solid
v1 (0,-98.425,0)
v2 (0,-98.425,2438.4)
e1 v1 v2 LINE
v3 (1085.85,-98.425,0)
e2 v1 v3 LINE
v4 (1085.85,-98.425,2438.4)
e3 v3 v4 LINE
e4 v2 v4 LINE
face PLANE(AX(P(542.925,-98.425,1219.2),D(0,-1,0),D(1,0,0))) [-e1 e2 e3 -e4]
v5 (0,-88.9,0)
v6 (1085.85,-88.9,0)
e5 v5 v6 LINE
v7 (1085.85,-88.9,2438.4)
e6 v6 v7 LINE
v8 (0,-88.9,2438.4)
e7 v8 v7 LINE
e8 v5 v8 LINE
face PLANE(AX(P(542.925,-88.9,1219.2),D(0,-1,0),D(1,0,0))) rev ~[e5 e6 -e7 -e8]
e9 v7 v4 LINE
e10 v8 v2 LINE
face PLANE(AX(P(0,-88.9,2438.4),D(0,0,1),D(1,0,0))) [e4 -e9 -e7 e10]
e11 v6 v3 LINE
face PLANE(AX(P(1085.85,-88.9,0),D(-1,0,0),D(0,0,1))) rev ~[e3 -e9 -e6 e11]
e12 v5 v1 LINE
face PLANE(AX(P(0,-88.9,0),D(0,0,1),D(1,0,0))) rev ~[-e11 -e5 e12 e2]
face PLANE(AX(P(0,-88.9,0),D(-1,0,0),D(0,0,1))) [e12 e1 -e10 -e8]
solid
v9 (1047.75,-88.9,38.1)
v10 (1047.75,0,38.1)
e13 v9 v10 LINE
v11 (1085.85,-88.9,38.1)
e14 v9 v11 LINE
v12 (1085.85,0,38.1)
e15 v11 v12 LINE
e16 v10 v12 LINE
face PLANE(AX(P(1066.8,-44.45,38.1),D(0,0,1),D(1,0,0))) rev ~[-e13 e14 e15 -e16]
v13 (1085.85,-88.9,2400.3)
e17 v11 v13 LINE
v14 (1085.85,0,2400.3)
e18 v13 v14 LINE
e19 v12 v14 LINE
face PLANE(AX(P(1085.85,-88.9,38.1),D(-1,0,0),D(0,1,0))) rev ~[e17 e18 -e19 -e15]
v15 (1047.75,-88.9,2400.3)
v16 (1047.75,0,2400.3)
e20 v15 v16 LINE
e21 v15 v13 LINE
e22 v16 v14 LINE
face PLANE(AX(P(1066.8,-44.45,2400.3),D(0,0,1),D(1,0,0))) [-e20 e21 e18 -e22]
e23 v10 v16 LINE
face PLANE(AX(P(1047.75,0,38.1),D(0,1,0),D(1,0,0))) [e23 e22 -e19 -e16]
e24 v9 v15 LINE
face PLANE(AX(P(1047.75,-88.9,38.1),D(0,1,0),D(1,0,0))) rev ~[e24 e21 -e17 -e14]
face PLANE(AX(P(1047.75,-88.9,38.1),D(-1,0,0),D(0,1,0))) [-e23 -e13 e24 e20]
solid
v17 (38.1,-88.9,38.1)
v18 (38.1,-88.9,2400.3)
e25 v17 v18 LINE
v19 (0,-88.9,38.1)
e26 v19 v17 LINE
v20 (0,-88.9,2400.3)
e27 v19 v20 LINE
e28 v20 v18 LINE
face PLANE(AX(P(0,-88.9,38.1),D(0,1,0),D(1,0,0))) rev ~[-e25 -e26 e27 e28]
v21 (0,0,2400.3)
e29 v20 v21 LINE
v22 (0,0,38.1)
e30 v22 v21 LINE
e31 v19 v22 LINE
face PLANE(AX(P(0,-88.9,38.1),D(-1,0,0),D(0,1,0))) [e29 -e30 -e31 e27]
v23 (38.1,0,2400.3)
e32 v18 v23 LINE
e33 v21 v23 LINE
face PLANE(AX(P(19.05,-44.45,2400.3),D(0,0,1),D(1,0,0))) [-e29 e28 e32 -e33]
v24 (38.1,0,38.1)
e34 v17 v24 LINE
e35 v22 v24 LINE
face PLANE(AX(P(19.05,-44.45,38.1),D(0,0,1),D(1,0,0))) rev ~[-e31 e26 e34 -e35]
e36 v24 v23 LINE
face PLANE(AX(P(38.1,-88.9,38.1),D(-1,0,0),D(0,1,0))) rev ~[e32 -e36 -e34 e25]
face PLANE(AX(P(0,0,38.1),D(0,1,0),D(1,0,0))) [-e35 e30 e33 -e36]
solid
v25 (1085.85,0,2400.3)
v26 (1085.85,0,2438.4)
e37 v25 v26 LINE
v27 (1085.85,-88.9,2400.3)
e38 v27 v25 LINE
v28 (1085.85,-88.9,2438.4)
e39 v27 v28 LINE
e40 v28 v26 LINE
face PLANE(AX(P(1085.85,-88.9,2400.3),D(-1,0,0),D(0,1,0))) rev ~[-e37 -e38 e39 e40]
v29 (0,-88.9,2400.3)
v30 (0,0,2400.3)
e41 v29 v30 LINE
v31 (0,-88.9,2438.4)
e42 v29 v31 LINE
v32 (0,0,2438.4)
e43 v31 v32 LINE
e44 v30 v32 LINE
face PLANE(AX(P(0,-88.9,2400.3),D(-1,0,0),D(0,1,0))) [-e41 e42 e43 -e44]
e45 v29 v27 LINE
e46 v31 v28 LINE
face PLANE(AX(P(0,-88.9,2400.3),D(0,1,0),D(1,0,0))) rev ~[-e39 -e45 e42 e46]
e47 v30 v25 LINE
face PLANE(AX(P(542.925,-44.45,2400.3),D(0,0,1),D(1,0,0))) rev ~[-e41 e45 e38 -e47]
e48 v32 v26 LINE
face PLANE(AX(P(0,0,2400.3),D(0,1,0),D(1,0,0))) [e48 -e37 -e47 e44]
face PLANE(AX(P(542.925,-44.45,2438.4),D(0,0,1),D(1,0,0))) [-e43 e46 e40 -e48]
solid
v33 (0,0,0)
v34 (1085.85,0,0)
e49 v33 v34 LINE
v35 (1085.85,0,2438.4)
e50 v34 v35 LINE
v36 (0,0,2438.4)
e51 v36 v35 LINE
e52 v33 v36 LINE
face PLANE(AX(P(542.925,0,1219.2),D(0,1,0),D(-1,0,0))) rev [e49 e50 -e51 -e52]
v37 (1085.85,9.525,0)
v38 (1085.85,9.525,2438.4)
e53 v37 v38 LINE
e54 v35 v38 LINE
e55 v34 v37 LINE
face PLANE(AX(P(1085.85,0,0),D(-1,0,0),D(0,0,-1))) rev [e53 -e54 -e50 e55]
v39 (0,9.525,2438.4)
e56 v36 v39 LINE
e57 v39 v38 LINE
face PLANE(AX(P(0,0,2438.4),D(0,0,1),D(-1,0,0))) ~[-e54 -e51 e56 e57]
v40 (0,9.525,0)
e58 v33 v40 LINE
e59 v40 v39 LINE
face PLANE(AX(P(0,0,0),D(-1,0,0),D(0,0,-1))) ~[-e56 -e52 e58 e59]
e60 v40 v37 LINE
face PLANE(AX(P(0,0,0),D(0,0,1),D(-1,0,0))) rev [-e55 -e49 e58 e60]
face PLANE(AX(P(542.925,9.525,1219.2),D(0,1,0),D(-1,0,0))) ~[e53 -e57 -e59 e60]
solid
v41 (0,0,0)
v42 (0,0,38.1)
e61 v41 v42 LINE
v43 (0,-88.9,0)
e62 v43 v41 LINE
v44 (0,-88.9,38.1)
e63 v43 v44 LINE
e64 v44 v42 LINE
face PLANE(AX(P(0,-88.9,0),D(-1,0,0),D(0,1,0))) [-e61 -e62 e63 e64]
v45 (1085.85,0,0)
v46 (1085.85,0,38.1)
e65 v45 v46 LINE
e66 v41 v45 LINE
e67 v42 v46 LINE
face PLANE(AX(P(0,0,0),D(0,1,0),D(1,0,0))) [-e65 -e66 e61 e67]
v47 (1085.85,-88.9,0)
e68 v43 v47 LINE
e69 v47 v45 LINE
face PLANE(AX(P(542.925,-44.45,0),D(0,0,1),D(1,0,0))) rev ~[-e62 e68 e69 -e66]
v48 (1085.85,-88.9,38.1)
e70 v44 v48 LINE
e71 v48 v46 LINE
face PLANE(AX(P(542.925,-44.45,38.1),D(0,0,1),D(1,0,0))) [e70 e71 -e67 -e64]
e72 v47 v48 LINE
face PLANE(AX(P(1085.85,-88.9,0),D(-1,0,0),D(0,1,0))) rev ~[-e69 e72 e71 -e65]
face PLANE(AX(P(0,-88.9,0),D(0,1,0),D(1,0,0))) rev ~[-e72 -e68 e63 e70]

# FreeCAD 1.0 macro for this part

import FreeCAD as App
import Part
import Sketcher

V = App.Vector
Q = App.Units.Quantity

doc = App.newDocument("Part")
body = doc.addObject("PartDesign::Body", "Body")

# Sketch on XY plane
sketch1 = body.newObject("Sketcher::SketchObject", "Sketch")
sketch1.AttachmentSupport = (doc.getObject("XY_Plane"), [""])
sketch1.MapMode = "FlatFace"
sketch1.addGeometry([
    Part.LineSegment(V(0, 0, 0), V(0, -89, 0)),
    Part.LineSegment(V(0, -89, 0), V(1086, -89, 0)),
    Part.LineSegment(V(1086, -89, 0), V(1086, 0, 0)),
    Part.LineSegment(V(1086, 0, 0), V(0, 0, 0)),
], False)
sketch1.addConstraint([
    Sketcher.Constraint("Coincident", 0, 2, 1, 1),
    Sketcher.Constraint("Coincident", 1, 2, 2, 1),
    Sketcher.Constraint("Coincident", 2, 2, 3, 1),
    Sketcher.Constraint("Coincident", 3, 2, 0, 1),
    Sketcher.Constraint("Vertical", 0),
    Sketcher.Constraint("Horizontal", 1),
    Sketcher.Constraint("Vertical", 2),
    Sketcher.Constraint("Horizontal", 3),
    Sketcher.Constraint("Coincident", 3, 2, -1, 1),
    Sketcher.Constraint("DistanceY", 0, 2, 0, 1, Q("3.5 in")),
    Sketcher.Constraint("DistanceX", 1, 1, 1, 2, Q("42.75 in")),
])
pad1 = body.newObject("PartDesign::Pad", "Pad")
pad1.Profile = sketch1
pad1.Length = Q("1.5 in")
body2 = doc.addObject("PartDesign::Body", "Body001")

# Sketch on XY plane
sketch2 = body2.newObject("Sketcher::SketchObject", "Sketch001")
sketch2.AttachmentSupport = (doc.getObject("XY_Plane001"), [""])
sketch2.MapMode = "FlatFace"
sketch2.AttachmentOffset = App.Placement(V(0, 0, 1.5 * 25.4), App.Rotation())
sketch2.addGeometry([
    Part.LineSegment(V(0, 0, 0), V(0, -89, 0)),
    Part.LineSegment(V(0, -89, 0), V(38, -89, 0)),
    Part.LineSegment(V(38, -89, 0), V(38, 0, 0)),
    Part.LineSegment(V(38, 0, 0), V(0, 0, 0)),
], False)
sketch2.addConstraint([
    Sketcher.Constraint("Coincident", 0, 2, 1, 1),
    Sketcher.Constraint("Coincident", 1, 2, 2, 1),
    Sketcher.Constraint("Coincident", 2, 2, 3, 1),
    Sketcher.Constraint("Coincident", 3, 2, 0, 1),
    Sketcher.Constraint("Vertical", 0),
    Sketcher.Constraint("Horizontal", 1),
    Sketcher.Constraint("Vertical", 2),
    Sketcher.Constraint("Horizontal", 3),
    Sketcher.Constraint("Coincident", 3, 2, -1, 1),
    Sketcher.Constraint("DistanceX", 1, 1, 1, 2, Q("1.5 in")),
    Sketcher.Constraint("DistanceY", 0, 2, 0, 1, Q("3.5 in")),
])
pad2 = body2.newObject("PartDesign::Pad", "Pad001")
pad2.Profile = sketch2
pad2.Length = Q("93 in")
body3 = doc.addObject("PartDesign::Body", "Body002")

# Sketch on XY plane
sketch3 = body3.newObject("Sketcher::SketchObject", "Sketch002")
sketch3.AttachmentSupport = (doc.getObject("XY_Plane002"), [""])
sketch3.MapMode = "FlatFace"
sketch3.AttachmentOffset = App.Placement(V(0, 0, 1.5 * 25.4), App.Rotation())
sketch3.addGeometry([
    Part.LineSegment(V(1048, 0, 0), V(1048, -89, 0)),
    Part.LineSegment(V(1048, -89, 0), V(1086, -89, 0)),
    Part.LineSegment(V(1086, -89, 0), V(1086, 0, 0)),
    Part.LineSegment(V(1086, 0, 0), V(1048, 0, 0)),
], False)
sketch3.addConstraint([
    Sketcher.Constraint("Coincident", 0, 2, 1, 1),
    Sketcher.Constraint("Coincident", 1, 2, 2, 1),
    Sketcher.Constraint("Coincident", 2, 2, 3, 1),
    Sketcher.Constraint("Coincident", 3, 2, 0, 1),
    Sketcher.Constraint("Vertical", 0),
    Sketcher.Constraint("Horizontal", 1),
    Sketcher.Constraint("Vertical", 2),
    Sketcher.Constraint("Horizontal", 3),
    Sketcher.Constraint("PointOnObject", 2, 2, -1),
    Sketcher.Constraint("DistanceX", 1, 1, 1, 2, Q("1.5 in")),
    Sketcher.Constraint("DistanceY", 0, 2, 0, 1, Q("3.5 in")),
    Sketcher.Constraint("DistanceX", -1, 1, 0, 2, Q("41.25 in")),
])
pad3 = body3.newObject("PartDesign::Pad", "Pad002")
pad3.Profile = sketch3
pad3.Length = Q("93 in")
body4 = doc.addObject("PartDesign::Body", "Body003")

# Sketch on XY plane
sketch4 = body4.newObject("Sketcher::SketchObject", "Sketch003")
sketch4.AttachmentSupport = (doc.getObject("XY_Plane003"), [""])
sketch4.MapMode = "FlatFace"
sketch4.AttachmentOffset = App.Placement(V(0, 0, 94.5 * 25.4), App.Rotation())
sketch4.addGeometry([
    Part.LineSegment(V(0, 0, 0), V(0, -89, 0)),
    Part.LineSegment(V(0, -89, 0), V(1086, -89, 0)),
    Part.LineSegment(V(1086, -89, 0), V(1086, 0, 0)),
    Part.LineSegment(V(1086, 0, 0), V(0, 0, 0)),
], False)
sketch4.addConstraint([
    Sketcher.Constraint("Coincident", 0, 2, 1, 1),
    Sketcher.Constraint("Coincident", 1, 2, 2, 1),
    Sketcher.Constraint("Coincident", 2, 2, 3, 1),
    Sketcher.Constraint("Coincident", 3, 2, 0, 1),
    Sketcher.Constraint("Vertical", 0),
    Sketcher.Constraint("Horizontal", 1),
    Sketcher.Constraint("Vertical", 2),
    Sketcher.Constraint("Horizontal", 3),
    Sketcher.Constraint("Coincident", 3, 2, -1, 1),
    Sketcher.Constraint("DistanceY", 0, 2, 0, 1, Q("3.5 in")),
    Sketcher.Constraint("DistanceX", 1, 1, 1, 2, Q("42.75 in")),
])
pad4 = body4.newObject("PartDesign::Pad", "Pad003")
pad4.Profile = sketch4
pad4.Length = Q("1.5 in")
body5 = doc.addObject("PartDesign::Body", "Body004")

# Sketch on XZ plane
sketch5 = body5.newObject("Sketcher::SketchObject", "Sketch004")
sketch5.AttachmentSupport = (doc.getObject("XZ_Plane004"), [""])
sketch5.MapMode = "FlatFace"
sketch5.AttachmentOffset = App.Placement(V(0, 0, 3.5 * 25.4), App.Rotation())
sketch5.addGeometry([
    Part.LineSegment(V(0, 2438, 0), V(0, 0, 0)),
    Part.LineSegment(V(0, 0, 0), V(1086, 0, 0)),
    Part.LineSegment(V(1086, 0, 0), V(1086, 2438, 0)),
    Part.LineSegment(V(1086, 2438, 0), V(0, 2438, 0)),
], False)
sketch5.addConstraint([
    Sketcher.Constraint("Coincident", 0, 2, 1, 1),
    Sketcher.Constraint("Coincident", 1, 2, 2, 1),
    Sketcher.Constraint("Coincident", 2, 2, 3, 1),
    Sketcher.Constraint("Coincident", 3, 2, 0, 1),
    Sketcher.Constraint("Vertical", 0),
    Sketcher.Constraint("Horizontal", 1),
    Sketcher.Constraint("Vertical", 2),
    Sketcher.Constraint("Horizontal", 3),
    Sketcher.Constraint("Coincident", 0, 2, -1, 1),
    Sketcher.Constraint("DistanceY", 0, 2, 0, 1, Q("96 in")),
    Sketcher.Constraint("DistanceX", 1, 1, 1, 2, Q("42.75 in")),
])
pad5 = body5.newObject("PartDesign::Pad", "Pad004")
pad5.Profile = sketch5
pad5.Length = Q("0.375 in")
body6 = doc.addObject("PartDesign::Body", "Body005")
doc.recompute()

mirroring = doc.addObject("Part::Mirroring", "Mirroring")
mirroring.Source = body5
mirroring.Base = V(1085.85, -44.45, 2438.4)
mirroring.Normal = V(0, -1, 0)
body6.BaseFeature = mirroring
doc.recompute()
mirroring.Visibility = False

doc.recompute()
